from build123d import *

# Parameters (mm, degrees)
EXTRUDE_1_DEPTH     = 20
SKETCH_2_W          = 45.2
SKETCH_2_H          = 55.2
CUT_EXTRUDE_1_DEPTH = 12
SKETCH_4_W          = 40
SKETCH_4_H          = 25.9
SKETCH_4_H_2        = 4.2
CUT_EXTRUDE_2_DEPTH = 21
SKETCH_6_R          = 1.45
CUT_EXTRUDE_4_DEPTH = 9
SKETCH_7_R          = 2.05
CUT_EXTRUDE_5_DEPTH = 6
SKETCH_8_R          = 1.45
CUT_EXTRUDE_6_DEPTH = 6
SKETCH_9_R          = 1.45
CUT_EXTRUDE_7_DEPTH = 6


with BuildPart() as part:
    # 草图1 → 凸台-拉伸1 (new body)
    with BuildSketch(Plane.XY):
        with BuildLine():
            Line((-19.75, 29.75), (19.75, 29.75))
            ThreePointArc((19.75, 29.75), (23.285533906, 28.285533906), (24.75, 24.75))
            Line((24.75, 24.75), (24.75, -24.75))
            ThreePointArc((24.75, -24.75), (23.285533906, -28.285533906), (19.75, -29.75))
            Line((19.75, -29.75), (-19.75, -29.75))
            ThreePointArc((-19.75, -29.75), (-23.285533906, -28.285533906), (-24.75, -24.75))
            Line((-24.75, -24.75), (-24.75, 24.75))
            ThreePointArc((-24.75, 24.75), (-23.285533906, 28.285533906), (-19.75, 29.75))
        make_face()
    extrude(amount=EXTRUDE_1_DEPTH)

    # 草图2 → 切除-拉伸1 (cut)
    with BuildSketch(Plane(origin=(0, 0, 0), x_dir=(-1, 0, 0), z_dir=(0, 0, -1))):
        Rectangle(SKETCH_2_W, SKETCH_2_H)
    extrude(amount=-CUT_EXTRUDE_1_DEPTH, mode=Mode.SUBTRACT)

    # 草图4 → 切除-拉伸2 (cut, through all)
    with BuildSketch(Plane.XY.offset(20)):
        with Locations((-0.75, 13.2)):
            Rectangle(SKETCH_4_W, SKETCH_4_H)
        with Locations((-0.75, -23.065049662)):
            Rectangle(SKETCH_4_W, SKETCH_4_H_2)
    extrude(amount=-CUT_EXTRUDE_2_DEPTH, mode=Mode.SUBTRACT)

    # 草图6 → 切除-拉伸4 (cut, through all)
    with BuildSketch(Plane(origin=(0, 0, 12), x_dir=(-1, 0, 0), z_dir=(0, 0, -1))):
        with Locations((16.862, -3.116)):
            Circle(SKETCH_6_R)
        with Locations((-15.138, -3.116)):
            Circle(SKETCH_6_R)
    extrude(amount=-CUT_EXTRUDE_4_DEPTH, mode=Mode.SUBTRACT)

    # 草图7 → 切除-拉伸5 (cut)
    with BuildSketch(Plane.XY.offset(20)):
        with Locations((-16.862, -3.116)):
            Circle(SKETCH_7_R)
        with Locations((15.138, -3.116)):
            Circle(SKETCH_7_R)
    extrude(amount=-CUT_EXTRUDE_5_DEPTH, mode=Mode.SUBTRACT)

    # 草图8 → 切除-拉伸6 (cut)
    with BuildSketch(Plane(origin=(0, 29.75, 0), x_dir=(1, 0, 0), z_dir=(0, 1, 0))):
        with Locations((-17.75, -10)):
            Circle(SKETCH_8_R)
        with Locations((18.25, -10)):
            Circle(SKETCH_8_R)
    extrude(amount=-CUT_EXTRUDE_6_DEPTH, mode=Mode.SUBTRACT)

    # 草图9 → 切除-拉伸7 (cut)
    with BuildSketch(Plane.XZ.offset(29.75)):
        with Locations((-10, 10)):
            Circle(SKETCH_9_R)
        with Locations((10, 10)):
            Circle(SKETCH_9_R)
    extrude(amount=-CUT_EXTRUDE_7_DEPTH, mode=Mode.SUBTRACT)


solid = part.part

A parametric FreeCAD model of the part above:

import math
import FreeCAD as App
import Part
import Sketcher

doc = App.newDocument("Part")
params = doc.addObject("Spreadsheet::Sheet", "Params")
for row, (alias, value) in enumerate([
    ("sketch1_radius", "5 mm"),
    ("sketch1_width", "39.5 mm"),
    ("sketch1_height", "49.5 mm"),
    ("pad1_length", "20 mm"),
    ("sketch2_width", "45.2 mm"),
    ("sketch2_height", "55.2 mm"),
    ("pocket1_length", "12 mm"),
    ("sketch3_width", "40 mm"),
    ("sketch3_height", "25.9 mm"),
    ("sketch3_height2", "4.2 mm"),
    ("sketch4_diameter", "2.9 mm"),
    ("sketch5_diameter", "4.1 mm"),
    ("pocket4_length", "6 mm"),
    ("sketch6_diameter", "2.9 mm"),
    ("pocket5_length", "6 mm"),
    ("sketch7_diameter", "2.9 mm"),
    ("pocket6_length", "6 mm"),
], start=1):
    params.set(f"A{row}", alias)
    params.set(f"B{row}", "=" + value)
    params.setAlias(f"B{row}", alias)

body = doc.addObject("PartDesign::Body", "Body")

# Sketch on XY plane
sketch1 = body.newObject("Sketcher::SketchObject", "Sketch")
sketch1.AttachmentSupport = (doc.getObject("XY_Plane"), [""])
sketch1.MapMode = "FlatFace"
sketch1.addGeometry([
    Part.LineSegment(App.Vector(20, 30, 0), App.Vector(-20, 30, 0)),  # 0
    Part.ArcOfCircle(Part.Circle(App.Vector(-20, 25, 0), App.Vector(0, 0, 1), 5), math.radians(90), math.radians(180)),  # 1
    Part.LineSegment(App.Vector(-25, 25, 0), App.Vector(-25, -25, 0)),  # 2
    Part.ArcOfCircle(Part.Circle(App.Vector(-20, -25, 0), App.Vector(0, 0, 1), 5), math.radians(180), math.radians(270)),  # 3
    Part.LineSegment(App.Vector(-20, -30, 0), App.Vector(20, -30, 0)),  # 4
    Part.ArcOfCircle(Part.Circle(App.Vector(20, -25, 0), App.Vector(0, 0, 1), 5), math.radians(-90), math.radians(0)),  # 5
    Part.LineSegment(App.Vector(25, -25, 0), App.Vector(25, 25, 0)),  # 6
    Part.ArcOfCircle(Part.Circle(App.Vector(20, 25, 0), App.Vector(0, 0, 1), 5), math.radians(0), math.radians(90)),  # 7
], False)
sketch1.addConstraint([
    Sketcher.Constraint("Tangent", 0, 2, 1, 1),
    Sketcher.Constraint("Tangent", 1, 2, 2, 1),
    Sketcher.Constraint("Tangent", 2, 2, 3, 1),
    Sketcher.Constraint("Tangent", 3, 2, 4, 1),
    Sketcher.Constraint("Tangent", 4, 2, 5, 1),
    Sketcher.Constraint("Tangent", 5, 2, 6, 1),
    Sketcher.Constraint("Tangent", 6, 2, 7, 1),
    Sketcher.Constraint("Tangent", 7, 2, 0, 1),
    Sketcher.Constraint("Horizontal", 0),
    Sketcher.Constraint("Vertical", 2),
    Sketcher.Constraint("Horizontal", 4),
    Sketcher.Constraint("Vertical", 6),
    Sketcher.Constraint("Equal", 1, 3),
    Sketcher.Constraint("Equal", 3, 5),
    Sketcher.Constraint("Equal", 5, 7),
    Sketcher.Constraint("Symmetric", 1, 3, 5, 3, -1, 1),
    Sketcher.Constraint("Radius", 1, 5.0),
    Sketcher.Constraint("DistanceX", 0, 2, 0, 1, 39.5),
    Sketcher.Constraint("DistanceY", 2, 2, 2, 1, 49.5),
])
sketch1.setExpression("Constraints[16]", "Params.sketch1_radius")
sketch1.setExpression("Constraints[17]", "Params.sketch1_width")
sketch1.setExpression("Constraints[18]", "Params.sketch1_height")
pad1 = body.newObject("PartDesign::Pad", "Pad")
pad1.Profile = sketch1
pad1.setExpression("Length", "Params.pad1_length")

# Sketch on XY plane
sketch2 = body.newObject("Sketcher::SketchObject", "Sketch001")
sketch2.AttachmentSupport = (doc.getObject("XY_Plane"), [""])
sketch2.MapMode = "FlatFace"
sketch2.addGeometry([
    Part.LineSegment(App.Vector(23, 28, 0), App.Vector(23, -28, 0)),
    Part.LineSegment(App.Vector(23, -28, 0), App.Vector(-23, -28, 0)),
    Part.LineSegment(App.Vector(-23, -28, 0), App.Vector(-23, 28, 0)),
    Part.LineSegment(App.Vector(-23, 28, 0), App.Vector(23, 28, 0)),
], False)
sketch2.addConstraint([
    Sketcher.Constraint("Coincident", 0, 2, 1, 1),
    Sketcher.Constraint("Coincident", 1, 2, 2, 1),
    Sketcher.Constraint("Coincident", 2, 2, 3, 1),
    Sketcher.Constraint("Coincident", 3, 2, 0, 1),
    Sketcher.Constraint("Vertical", 0),
    Sketcher.Constraint("Horizontal", 1),
    Sketcher.Constraint("Vertical", 2),
    Sketcher.Constraint("Horizontal", 3),
    Sketcher.Constraint("Symmetric", 0, 2, 2, 2, -1, 1),
    Sketcher.Constraint("DistanceX", 1, 2, 1, 1, 45.2),
    Sketcher.Constraint("DistanceY", 0, 2, 0, 1, 55.2),
])
sketch2.setExpression("Constraints[9]", "Params.sketch2_width")
sketch2.setExpression("Constraints[10]", "Params.sketch2_height")
pocket1 = body.newObject("PartDesign::Pocket", "Pocket")
pocket1.Profile = sketch2
pocket1.setExpression("Length", "Params.pocket1_length")
pocket1.Reversed = True

# Sketch on XY plane
sketch3 = body.newObject("Sketcher::SketchObject", "Sketch002")
sketch3.AttachmentSupport = (doc.getObject("XY_Plane"), [""])
sketch3.MapMode = "FlatFace"
sketch3.AttachmentOffset = App.Placement(App.Vector(0, 0, 20), App.Rotation())
sketch3.addGeometry([
    Part.LineSegment(App.Vector(-20.8, 26.1, 0), App.Vector(-20.8, 0.2, 0)),  # 0
    Part.LineSegment(App.Vector(-20.8, 0.2, 0), App.Vector(19.2, 0.2, 0)),  # 1
    Part.LineSegment(App.Vector(19.2, 0.2, 0), App.Vector(19.2, 26.1, 0)),  # 2
    Part.LineSegment(App.Vector(19.2, 26.1, 0), App.Vector(-20.8, 26.1, 0)),  # 3
    Part.LineSegment(App.Vector(-20.8, -21, 0), App.Vector(-20.8, -25.2, 0)),  # 4
    Part.LineSegment(App.Vector(-20.8, -25.2, 0), App.Vector(19.2, -25.2, 0)),  # 5
    Part.LineSegment(App.Vector(19.2, -25.2, 0), App.Vector(19.2, -21, 0)),  # 6
    Part.LineSegment(App.Vector(19.2, -21, 0), App.Vector(-20.8, -21, 0)),  # 7
], False)
sketch3.addConstraint([
    Sketcher.Constraint("Coincident", 0, 2, 1, 1),
    Sketcher.Constraint("Coincident", 1, 2, 2, 1),
    Sketcher.Constraint("Coincident", 2, 2, 3, 1),
    Sketcher.Constraint("Coincident", 3, 2, 0, 1),
    Sketcher.Constraint("Coincident", 4, 2, 5, 1),
    Sketcher.Constraint("Coincident", 5, 2, 6, 1),
    Sketcher.Constraint("Coincident", 6, 2, 7, 1),
    Sketcher.Constraint("Coincident", 7, 2, 4, 1),
    Sketcher.Constraint("Vertical", 0),
    Sketcher.Constraint("Horizontal", 1),
    Sketcher.Constraint("Vertical", 2),
    Sketcher.Constraint("Horizontal", 3),
    Sketcher.Constraint("Vertical", 4),
    Sketcher.Constraint("Horizontal", 5),
    Sketcher.Constraint("Vertical", 6),
    Sketcher.Constraint("Horizontal", 7),
    Sketcher.Constraint("Vertical", 3, 2, 4, 2),
    Sketcher.Constraint("Vertical", 2, 2, 5, 2),
    Sketcher.Constraint("DistanceX", 1, 1, 1, 2, 40.0),
    Sketcher.Constraint("DistanceY", 0, 2, 0, 1, 25.9),
    Sketcher.Constraint("DistanceY", 4, 2, 4, 1, 4.2),
    Sketcher.Constraint("DistanceX", 0, 2, -1, 1, 20.75),
    Sketcher.Constraint("DistanceY", -1, 1, 0, 2, 0.25),
    Sketcher.Constraint("DistanceY", 4, 2, -1, 1, 25.16505),
])
sketch3.setExpression("Constraints[18]", "Params.sketch3_width")
sketch3.setExpression("Constraints[19]", "Params.sketch3_height")
sketch3.setExpression("Constraints[20]", "Params.sketch3_height2")
pocket2 = body.newObject("PartDesign::Pocket", "Pocket001")
pocket2.Profile = sketch3
pocket2.Type = "ThroughAll"

# Sketch on XY plane
sketch4 = body.newObject("Sketcher::SketchObject", "Sketch003")
sketch4.AttachmentSupport = (doc.getObject("XY_Plane"), [""])
sketch4.MapMode = "FlatFace"
sketch4.AttachmentOffset = App.Placement(App.Vector(0, 0, 12), App.Rotation())
sketch4.addGeometry([
    Part.Circle(App.Vector(-16.9, -3.1, 0), App.Vector(0, 0, 1), 1.4),
    Part.Circle(App.Vector(15.1, -3.1, 0), App.Vector(0, 0, 1), 1.4),
], False)
sketch4.addConstraint([
    Sketcher.Constraint("Equal", 0, 1),
    Sketcher.Constraint("Horizontal", 0, 3, 1, 3),
    Sketcher.Constraint("Diameter", 0, 2.9),
    Sketcher.Constraint("DistanceX", 0, 3, 1, 3, 32.0),
    Sketcher.Constraint("DistanceX", 0, 3, -1, 1, 16.862),
    Sketcher.Constraint("DistanceY", 0, 3, -1, 1, 3.116),
])
sketch4.setExpression("Constraints[2]", "Params.sketch4_diameter")
pocket3 = body.newObject("PartDesign::Pocket", "Pocket002")
pocket3.Profile = sketch4
pocket3.Type = "ThroughAll"
pocket3.Reversed = True

# Sketch on XY plane
sketch5 = body.newObject("Sketcher::SketchObject", "Sketch004")
sketch5.AttachmentSupport = (doc.getObject("XY_Plane"), [""])
sketch5.MapMode = "FlatFace"
sketch5.AttachmentOffset = App.Placement(App.Vector(0, 0, 20), App.Rotation())
sketch5.addGeometry([
    Part.Circle(App.Vector(-16.9, -3.1, 0), App.Vector(0, 0, 1), 2),
    Part.Circle(App.Vector(15.1, -3.1, 0), App.Vector(0, 0, 1), 2),
], False)
sketch5.addConstraint([
    Sketcher.Constraint("Equal", 0, 1),
    Sketcher.Constraint("Horizontal", 0, 3, 1, 3),
    Sketcher.Constraint("Diameter", 0, 4.1),
    Sketcher.Constraint("DistanceX", 0, 3, 1, 3, 32.0),
    Sketcher.Constraint("DistanceX", 0, 3, -1, 1, 16.862),
    Sketcher.Constraint("DistanceY", 0, 3, -1, 1, 3.116),
])
sketch5.setExpression("Constraints[2]", "Params.sketch5_diameter")
pocket4 = body.newObject("PartDesign::Pocket", "Pocket003")
pocket4.Profile = sketch5
pocket4.setExpression("Length", "Params.pocket4_length")

# Sketch on XZ plane
sketch6 = body.newObject("Sketcher::SketchObject", "Sketch005")
sketch6.AttachmentSupport = (doc.getObject("XZ_Plane"), [""])
sketch6.MapMode = "FlatFace"
sketch6.AttachmentOffset = App.Placement(App.Vector(0, 0, -29.75), App.Rotation())
sketch6.addGeometry([
    Part.Circle(App.Vector(-17.8, 10, 0), App.Vector(0, 0, 1), 1.4),
    Part.Circle(App.Vector(18.2, 10, 0), App.Vector(0, 0, 1), 1.4),
], False)
sketch6.addConstraint([
    Sketcher.Constraint("Equal", 0, 1),
    Sketcher.Constraint("Horizontal", 0, 3, 1, 3),
    Sketcher.Constraint("Diameter", 0, 2.9),
    Sketcher.Constraint("DistanceY", -1, 1, 0, 3, 10.0),
    Sketcher.Constraint("DistanceX", 0, 3, 1, 3, 36.0),
    Sketcher.Constraint("DistanceX", 0, 3, -1, 1, 17.75),
])
sketch6.setExpression("Constraints[2]", "Params.sketch6_diameter")
pocket5 = body.newObject("PartDesign::Pocket", "Pocket004")
pocket5.Profile = sketch6
pocket5.setExpression("Length", "Params.pocket5_length")
pocket5.Reversed = True

# Sketch on XZ plane
sketch7 = body.newObject("Sketcher::SketchObject", "Sketch006")
sketch7.AttachmentSupport = (doc.getObject("XZ_Plane"), [""])
sketch7.MapMode = "FlatFace"
sketch7.AttachmentOffset = App.Placement(App.Vector(0, 0, 29.75), App.Rotation())
sketch7.addGeometry([
    Part.Circle(App.Vector(-10, 10, 0), App.Vector(0, 0, 1), 1.4),
    Part.Circle(App.Vector(10, 10, 0), App.Vector(0, 0, 1), 1.4),
], False)
sketch7.addConstraint([
    Sketcher.Constraint("Equal", 0, 1),
    Sketcher.Constraint("Symmetric", 0, 3, 1, 3, -2),
    Sketcher.Constraint("Diameter", 0, 2.9),
    Sketcher.Constraint("DistanceX", 0, 3, -1, 1, 10.0),
    Sketcher.Constraint("DistanceY", -1, 1, 0, 3, 10.0),
])
sketch7.setExpression("Constraints[2]", "Params.sketch7_diameter")
pocket6 = body.newObject("PartDesign::Pocket", "Pocket005")
pocket6.Profile = sketch7
pocket6.setExpression("Length", "Params.pocket6_length")

doc.recompute()
